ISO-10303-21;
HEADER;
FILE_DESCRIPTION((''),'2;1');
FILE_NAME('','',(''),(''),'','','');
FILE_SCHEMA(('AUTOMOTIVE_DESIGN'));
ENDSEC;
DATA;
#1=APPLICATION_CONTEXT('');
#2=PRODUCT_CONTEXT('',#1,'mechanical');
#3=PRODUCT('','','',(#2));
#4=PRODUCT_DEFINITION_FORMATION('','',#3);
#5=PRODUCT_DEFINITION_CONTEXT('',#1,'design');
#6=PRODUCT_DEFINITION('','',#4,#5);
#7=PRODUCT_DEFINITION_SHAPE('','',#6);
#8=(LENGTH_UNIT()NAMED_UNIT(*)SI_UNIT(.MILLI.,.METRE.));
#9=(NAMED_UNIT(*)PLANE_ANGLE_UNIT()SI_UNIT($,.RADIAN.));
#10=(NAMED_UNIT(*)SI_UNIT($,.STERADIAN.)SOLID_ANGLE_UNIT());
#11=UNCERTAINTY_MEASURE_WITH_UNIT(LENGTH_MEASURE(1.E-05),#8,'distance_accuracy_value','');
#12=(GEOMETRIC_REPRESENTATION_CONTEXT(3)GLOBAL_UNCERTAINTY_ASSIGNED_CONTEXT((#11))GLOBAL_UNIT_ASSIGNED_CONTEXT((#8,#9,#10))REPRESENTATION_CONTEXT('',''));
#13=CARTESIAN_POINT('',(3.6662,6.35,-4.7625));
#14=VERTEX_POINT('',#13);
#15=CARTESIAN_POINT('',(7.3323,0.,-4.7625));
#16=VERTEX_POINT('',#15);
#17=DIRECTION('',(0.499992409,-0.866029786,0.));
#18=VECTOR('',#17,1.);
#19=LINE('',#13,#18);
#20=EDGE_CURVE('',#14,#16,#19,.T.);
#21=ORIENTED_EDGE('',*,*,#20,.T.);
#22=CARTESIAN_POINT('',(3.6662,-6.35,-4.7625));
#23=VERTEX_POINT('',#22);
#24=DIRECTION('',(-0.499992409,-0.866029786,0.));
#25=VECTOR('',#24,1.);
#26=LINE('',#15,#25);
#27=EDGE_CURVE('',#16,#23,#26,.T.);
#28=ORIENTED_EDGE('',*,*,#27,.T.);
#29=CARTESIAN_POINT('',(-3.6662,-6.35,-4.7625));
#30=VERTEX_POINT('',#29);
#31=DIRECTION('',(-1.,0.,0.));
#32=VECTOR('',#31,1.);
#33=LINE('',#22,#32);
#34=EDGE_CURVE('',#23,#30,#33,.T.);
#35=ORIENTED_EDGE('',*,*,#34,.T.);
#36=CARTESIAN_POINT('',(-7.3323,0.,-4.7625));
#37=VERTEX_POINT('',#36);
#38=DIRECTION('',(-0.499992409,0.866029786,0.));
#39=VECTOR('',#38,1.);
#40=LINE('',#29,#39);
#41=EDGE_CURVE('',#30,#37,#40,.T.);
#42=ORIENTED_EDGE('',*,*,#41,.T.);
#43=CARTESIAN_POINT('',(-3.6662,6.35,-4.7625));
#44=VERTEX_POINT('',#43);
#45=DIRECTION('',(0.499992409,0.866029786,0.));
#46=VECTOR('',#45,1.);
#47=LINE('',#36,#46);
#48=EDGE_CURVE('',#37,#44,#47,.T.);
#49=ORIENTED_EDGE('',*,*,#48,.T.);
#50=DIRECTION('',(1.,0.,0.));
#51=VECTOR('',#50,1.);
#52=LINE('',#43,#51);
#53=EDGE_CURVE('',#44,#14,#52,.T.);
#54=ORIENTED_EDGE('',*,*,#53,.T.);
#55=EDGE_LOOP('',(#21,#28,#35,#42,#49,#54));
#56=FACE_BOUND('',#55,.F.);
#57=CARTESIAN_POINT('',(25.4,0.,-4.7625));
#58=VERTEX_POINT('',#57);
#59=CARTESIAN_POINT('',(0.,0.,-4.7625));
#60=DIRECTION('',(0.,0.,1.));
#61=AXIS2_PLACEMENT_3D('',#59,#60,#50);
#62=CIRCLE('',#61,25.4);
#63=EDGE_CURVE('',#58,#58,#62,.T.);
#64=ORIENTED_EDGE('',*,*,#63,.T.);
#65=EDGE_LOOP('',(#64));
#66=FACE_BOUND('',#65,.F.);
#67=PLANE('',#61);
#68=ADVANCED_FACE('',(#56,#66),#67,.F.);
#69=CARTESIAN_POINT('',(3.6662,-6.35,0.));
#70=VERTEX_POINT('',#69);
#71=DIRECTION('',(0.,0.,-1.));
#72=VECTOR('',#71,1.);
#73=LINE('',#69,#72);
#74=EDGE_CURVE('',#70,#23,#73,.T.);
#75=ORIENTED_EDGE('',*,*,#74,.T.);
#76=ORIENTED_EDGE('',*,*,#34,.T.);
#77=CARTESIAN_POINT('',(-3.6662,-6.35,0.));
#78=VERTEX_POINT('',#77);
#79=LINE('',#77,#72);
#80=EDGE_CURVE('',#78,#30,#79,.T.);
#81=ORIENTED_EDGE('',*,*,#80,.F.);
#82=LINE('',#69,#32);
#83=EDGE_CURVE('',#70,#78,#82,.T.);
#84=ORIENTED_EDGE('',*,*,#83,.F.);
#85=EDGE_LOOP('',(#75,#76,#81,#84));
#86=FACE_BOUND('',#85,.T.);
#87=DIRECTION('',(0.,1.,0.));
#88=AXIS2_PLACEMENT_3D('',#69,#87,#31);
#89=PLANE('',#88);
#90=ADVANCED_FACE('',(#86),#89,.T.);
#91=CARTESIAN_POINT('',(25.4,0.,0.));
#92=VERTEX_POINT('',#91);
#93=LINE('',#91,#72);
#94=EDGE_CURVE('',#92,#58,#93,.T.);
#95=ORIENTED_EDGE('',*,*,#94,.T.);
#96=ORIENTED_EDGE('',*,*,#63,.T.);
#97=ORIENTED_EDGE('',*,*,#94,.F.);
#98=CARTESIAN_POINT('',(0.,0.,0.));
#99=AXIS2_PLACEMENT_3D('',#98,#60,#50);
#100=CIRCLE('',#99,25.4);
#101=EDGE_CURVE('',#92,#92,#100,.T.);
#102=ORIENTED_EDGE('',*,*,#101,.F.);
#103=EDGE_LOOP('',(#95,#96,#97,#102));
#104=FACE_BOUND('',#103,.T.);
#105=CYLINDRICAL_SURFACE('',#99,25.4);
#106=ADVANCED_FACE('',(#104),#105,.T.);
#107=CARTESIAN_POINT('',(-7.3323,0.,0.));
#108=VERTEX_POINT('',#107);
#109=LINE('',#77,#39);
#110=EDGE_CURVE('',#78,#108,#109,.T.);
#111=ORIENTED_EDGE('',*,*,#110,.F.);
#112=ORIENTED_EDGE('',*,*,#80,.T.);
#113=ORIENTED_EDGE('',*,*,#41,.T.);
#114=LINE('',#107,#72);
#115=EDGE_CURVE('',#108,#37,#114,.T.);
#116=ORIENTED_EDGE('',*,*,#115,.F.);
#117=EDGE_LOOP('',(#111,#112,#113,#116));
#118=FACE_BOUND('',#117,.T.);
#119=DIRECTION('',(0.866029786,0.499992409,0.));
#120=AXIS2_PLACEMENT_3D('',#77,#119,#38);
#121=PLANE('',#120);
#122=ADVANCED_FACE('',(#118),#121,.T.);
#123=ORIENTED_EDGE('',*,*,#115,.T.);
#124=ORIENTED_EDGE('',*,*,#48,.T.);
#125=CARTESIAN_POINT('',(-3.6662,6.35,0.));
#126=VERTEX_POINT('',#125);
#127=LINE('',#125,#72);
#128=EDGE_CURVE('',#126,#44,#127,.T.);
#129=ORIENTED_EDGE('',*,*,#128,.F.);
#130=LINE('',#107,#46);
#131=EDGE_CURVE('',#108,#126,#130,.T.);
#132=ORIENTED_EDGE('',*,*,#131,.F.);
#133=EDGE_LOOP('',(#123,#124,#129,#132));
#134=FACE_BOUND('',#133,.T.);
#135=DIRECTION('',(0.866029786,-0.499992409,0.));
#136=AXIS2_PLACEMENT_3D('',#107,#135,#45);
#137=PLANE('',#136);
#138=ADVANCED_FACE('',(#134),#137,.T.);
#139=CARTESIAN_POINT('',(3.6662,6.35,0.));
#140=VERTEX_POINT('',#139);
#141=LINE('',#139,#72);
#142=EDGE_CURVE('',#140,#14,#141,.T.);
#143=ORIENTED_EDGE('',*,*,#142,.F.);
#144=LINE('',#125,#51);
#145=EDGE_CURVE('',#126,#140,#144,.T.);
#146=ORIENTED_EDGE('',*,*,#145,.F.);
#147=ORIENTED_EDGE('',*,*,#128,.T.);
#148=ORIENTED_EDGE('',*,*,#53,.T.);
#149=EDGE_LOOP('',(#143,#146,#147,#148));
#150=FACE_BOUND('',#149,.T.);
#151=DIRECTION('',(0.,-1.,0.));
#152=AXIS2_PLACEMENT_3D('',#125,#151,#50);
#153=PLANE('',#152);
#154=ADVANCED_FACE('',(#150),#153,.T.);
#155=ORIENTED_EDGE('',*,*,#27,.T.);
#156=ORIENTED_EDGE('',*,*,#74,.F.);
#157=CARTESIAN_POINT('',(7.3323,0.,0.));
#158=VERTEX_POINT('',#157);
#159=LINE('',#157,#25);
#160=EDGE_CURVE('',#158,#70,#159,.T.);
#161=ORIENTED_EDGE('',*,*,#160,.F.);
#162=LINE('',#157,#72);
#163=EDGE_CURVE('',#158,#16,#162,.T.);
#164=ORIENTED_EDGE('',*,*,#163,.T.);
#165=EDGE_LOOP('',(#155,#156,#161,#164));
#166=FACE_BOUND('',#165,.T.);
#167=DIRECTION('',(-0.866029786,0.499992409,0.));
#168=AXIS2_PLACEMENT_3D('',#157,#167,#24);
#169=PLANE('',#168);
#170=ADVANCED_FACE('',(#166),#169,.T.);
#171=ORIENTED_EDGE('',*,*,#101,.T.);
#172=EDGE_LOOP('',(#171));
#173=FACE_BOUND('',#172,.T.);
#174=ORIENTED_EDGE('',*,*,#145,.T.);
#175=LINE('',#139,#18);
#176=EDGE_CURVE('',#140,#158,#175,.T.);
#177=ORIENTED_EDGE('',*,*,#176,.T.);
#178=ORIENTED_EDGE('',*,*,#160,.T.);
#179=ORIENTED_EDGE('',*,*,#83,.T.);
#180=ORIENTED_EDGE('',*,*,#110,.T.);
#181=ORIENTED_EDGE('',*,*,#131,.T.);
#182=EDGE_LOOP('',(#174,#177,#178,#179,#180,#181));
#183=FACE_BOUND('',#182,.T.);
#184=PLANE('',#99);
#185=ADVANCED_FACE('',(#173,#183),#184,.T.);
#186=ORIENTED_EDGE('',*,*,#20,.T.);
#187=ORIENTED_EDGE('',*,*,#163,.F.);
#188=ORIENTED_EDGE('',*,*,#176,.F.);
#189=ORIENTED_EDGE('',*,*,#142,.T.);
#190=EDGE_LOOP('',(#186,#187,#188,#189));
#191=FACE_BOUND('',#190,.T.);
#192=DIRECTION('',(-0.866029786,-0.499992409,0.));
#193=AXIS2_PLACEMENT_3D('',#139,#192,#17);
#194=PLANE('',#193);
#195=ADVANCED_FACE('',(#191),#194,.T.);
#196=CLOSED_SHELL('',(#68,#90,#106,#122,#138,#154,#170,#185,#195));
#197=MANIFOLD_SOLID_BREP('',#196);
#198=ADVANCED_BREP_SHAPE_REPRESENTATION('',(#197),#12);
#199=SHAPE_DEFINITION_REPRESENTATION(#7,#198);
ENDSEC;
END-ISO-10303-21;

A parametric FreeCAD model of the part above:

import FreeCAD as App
import Part
import Sketcher
Q = App.Units.Quantity


def add_polygon(sketch, points):
    """Adds a closed chain of lines whose ends are joined by coincident constraints."""
    first, n = sketch.GeometryCount, len(points)
    for a, b in zip(points, points[1:] + points[:1]):
        sketch.addGeometry(Part.LineSegment(App.Vector(*a, 0), App.Vector(*b, 0)), False)
    for i in range(n):
        sketch.addConstraint(Sketcher.Constraint("Coincident", first + i, 2, first + (i + 1) % n, 1))

doc = App.newDocument("Part")
body = doc.addObject("PartDesign::Body", "Body")

sketch1 = doc.addObject("Sketcher::SketchObject", "Sketch")
body.addObject(sketch1)
sketch1.AttachmentSupport = (doc.XY_Plane, [""])
sketch1.MapMode = "FlatFace"
sketch1.addGeometry(Part.Circle(App.Vector(0, 0, 0), App.Vector(0, 0, 1), 25.4), False)
add_polygon(sketch1, [(-3.6662, 6.35), (3.6662, 6.35), (7.3323, 0), (3.6662, -6.35), (-3.6662, -6.35), (-7.3323, 0)])
sketch1.addConstraint([
    Sketcher.Constraint("Horizontal", 1),
    Sketcher.Constraint("Horizontal", 4),
    Sketcher.Constraint("Coincident", 0, 3, -1, 1),
    Sketcher.Constraint("Symmetric", 1, 2, 4, 2, -1, 1),
    Sketcher.Constraint("Symmetric", 2, 2, 5, 2, -1, 1),
    Sketcher.Constraint("PointOnObject", 2, 2, -1),
    Sketcher.Constraint("Parallel", 3, 6),
    Sketcher.Constraint("Vertical", 1, 2, 3, 2),
    Sketcher.Constraint("Diameter", 0, Q("2 in")),
    Sketcher.Constraint("DistanceY", 3, 2, 1, 2, Q("0.5 in")),
    Sketcher.Constraint("Angle", 2, Q("-60.0005 deg")),
    Sketcher.Constraint("DistanceX", 4, 2, 2, 2, Q("0.433 in")),
])
pad1 = doc.addObject("PartDesign::Pad", "Pad")
body.addObject(pad1)
pad1.Profile = sketch1
pad1.Length = Q("0.1875 in")
pad1.Reversed = True

doc.recompute()
